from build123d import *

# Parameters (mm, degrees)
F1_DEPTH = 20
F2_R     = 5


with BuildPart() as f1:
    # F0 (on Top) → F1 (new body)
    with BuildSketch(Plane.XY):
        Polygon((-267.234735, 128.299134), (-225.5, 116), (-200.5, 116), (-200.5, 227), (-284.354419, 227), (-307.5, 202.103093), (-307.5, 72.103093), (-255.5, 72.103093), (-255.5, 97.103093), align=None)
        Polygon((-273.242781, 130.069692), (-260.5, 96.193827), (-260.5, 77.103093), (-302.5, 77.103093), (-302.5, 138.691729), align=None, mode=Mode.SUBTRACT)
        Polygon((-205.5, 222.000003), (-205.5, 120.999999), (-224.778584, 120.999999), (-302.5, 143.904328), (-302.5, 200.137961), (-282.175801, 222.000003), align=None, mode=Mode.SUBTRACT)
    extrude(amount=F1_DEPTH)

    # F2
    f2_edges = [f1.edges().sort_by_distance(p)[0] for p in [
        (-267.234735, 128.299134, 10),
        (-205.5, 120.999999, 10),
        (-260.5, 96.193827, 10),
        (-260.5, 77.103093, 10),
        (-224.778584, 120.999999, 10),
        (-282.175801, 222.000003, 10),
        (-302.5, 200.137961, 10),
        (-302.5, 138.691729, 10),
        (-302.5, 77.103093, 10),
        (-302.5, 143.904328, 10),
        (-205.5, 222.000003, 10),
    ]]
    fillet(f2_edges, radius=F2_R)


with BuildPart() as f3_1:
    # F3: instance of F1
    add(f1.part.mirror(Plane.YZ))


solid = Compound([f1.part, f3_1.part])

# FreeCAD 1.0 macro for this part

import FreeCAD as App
import Part
import Sketcher
from FreeCAD import Vector


def edges_at(feature, points):
    """Names of the edges that pass closest to the given points."""
    edges = feature.Shape.Edges
    near = lambda p: min(range(len(edges)), key=lambda i: edges[i].distToShape(Part.Vertex(*p))[0])
    return sorted({f"Edge{near(p) + 1}" for p in points})

doc = App.newDocument("Part")
params = doc.addObject("Spreadsheet::Sheet", "Params")
for row, (alias, value) in enumerate([
    ("sketch1_width", "25 mm"),
    ("sketch1_width2", "52 mm"),
    ("sketch1_width3", "42 mm"),
    ("sketch1_height", "111 mm"),
    ("sketch1_height2", "130 mm"),
    ("pad1_length", "20 mm"),
    ("fillet_radius", "5 mm"),
], start=1):
    params.set(f"A{row}", alias)
    params.set(f"B{row}", "=" + value)
    params.setAlias(f"B{row}", alias)

body = doc.addObject("PartDesign::Body", "Body")

sketch1 = doc.addObject("Sketcher::SketchObject", "Sketch")
body.addObject(sketch1)
sketch1.AttachmentSupport = (doc.XY_Plane, [""])
sketch1.MapMode = "FlatFace"
sketch1.addGeometry([
    Part.LineSegment(Vector(-267, 128, 0), Vector(-226, 116, 0)),
    Part.LineSegment(Vector(-226, 116, 0), Vector(-200, 116, 0)),
    Part.LineSegment(Vector(-200, 116, 0), Vector(-200, 227, 0)),
    Part.LineSegment(Vector(-200, 227, 0), Vector(-284, 227, 0)),
    Part.LineSegment(Vector(-284, 227, 0), Vector(-308, 202, 0)),
    Part.LineSegment(Vector(-308, 202, 0), Vector(-308, 72, 0)),
    Part.LineSegment(Vector(-308, 72, 0), Vector(-256, 72, 0)),
    Part.LineSegment(Vector(-256, 72, 0), Vector(-256, 97, 0)),
    Part.LineSegment(Vector(-256, 97, 0), Vector(-267, 128, 0)),
    Part.LineSegment(Vector(-302, 139, 0), Vector(-273, 130, 0)),
    Part.LineSegment(Vector(-273, 130, 0), Vector(-260, 96, 0)),
    Part.LineSegment(Vector(-260, 96, 0), Vector(-260, 77, 0)),
    Part.LineSegment(Vector(-260, 77, 0), Vector(-302, 77, 0)),
    Part.LineSegment(Vector(-302, 77, 0), Vector(-302, 139, 0)),
    Part.LineSegment(Vector(-282, 222, 0), Vector(-206, 222, 0)),
    Part.LineSegment(Vector(-206, 222, 0), Vector(-206, 121, 0)),
    Part.LineSegment(Vector(-206, 121, 0), Vector(-225, 121, 0)),
    Part.LineSegment(Vector(-225, 121, 0), Vector(-302, 144, 0)),
    Part.LineSegment(Vector(-302, 144, 0), Vector(-302, 200, 0)),
    Part.LineSegment(Vector(-302, 200, 0), Vector(-282, 222, 0)),
], False)
sketch1.addConstraint([
    Sketcher.Constraint("Coincident", 0, 2, 1, 1),
    Sketcher.Constraint("Coincident", 1, 2, 2, 1),
    Sketcher.Constraint("Coincident", 2, 2, 3, 1),
    Sketcher.Constraint("Coincident", 3, 2, 4, 1),
    Sketcher.Constraint("Coincident", 4, 2, 5, 1),
    Sketcher.Constraint("Coincident", 5, 2, 6, 1),
    Sketcher.Constraint("Coincident", 6, 2, 7, 1),
    Sketcher.Constraint("Coincident", 7, 2, 8, 1),
    Sketcher.Constraint("Coincident", 8, 2, 0, 1),
    Sketcher.Constraint("Coincident", 9, 2, 10, 1),
    Sketcher.Constraint("Coincident", 10, 2, 11, 1),
    Sketcher.Constraint("Coincident", 11, 2, 12, 1),
    Sketcher.Constraint("Coincident", 12, 2, 13, 1),
    Sketcher.Constraint("Coincident", 13, 2, 9, 1),
    Sketcher.Constraint("Coincident", 14, 2, 15, 1),
    Sketcher.Constraint("Coincident", 15, 2, 16, 1),
    Sketcher.Constraint("Coincident", 16, 2, 17, 1),
    Sketcher.Constraint("Coincident", 17, 2, 18, 1),
    Sketcher.Constraint("Coincident", 18, 2, 19, 1),
    Sketcher.Constraint("Coincident", 19, 2, 14, 1),
    Sketcher.Constraint("Horizontal", 1),
    Sketcher.Constraint("Vertical", 2),
    Sketcher.Constraint("Horizontal", 3),
    Sketcher.Constraint("Vertical", 5),
    Sketcher.Constraint("Horizontal", 6),
    Sketcher.Constraint("Vertical", 7),
    Sketcher.Constraint("Vertical", 11),
    Sketcher.Constraint("Horizontal", 12),
    Sketcher.Constraint("Vertical", 13),
    Sketcher.Constraint("Horizontal", 14),
    Sketcher.Constraint("Vertical", 15),
    Sketcher.Constraint("Horizontal", 16),
    Sketcher.Constraint("Vertical", 18),
    Sketcher.Constraint("Parallel", 0, 9),
    Sketcher.Constraint("Parallel", 8, 10),
    Sketcher.Constraint("Parallel", 9, 17),
    Sketcher.Constraint("Parallel", 4, 19),
    Sketcher.Constraint("Vertical", 13, 2, 17, 2),
    Sketcher.Constraint("Equal", 1, 7),
    Sketcher.Constraint("DistanceX", 1, 1, 1, 2, 25.0),
    Sketcher.Constraint("DistanceX", 6, 1, 6, 2, 52.0),
    Sketcher.Constraint("DistanceX", 12, 2, 12, 1, 42.0),
    Sketcher.Constraint("DistanceY", 2, 1, 2, 2, 111.0),
    Sketcher.Constraint("DistanceY", 5, 2, 5, 1, 130.0),
    Sketcher.Constraint("DistanceY", -1, 1, 0, 2, 116.0),
    Sketcher.Constraint("DistanceY", -1, 1, 15, 2, 120.999999),
    Sketcher.Constraint("DistanceX", 4, 2, 2, 2, 107.0),
    Sketcher.Constraint("DistanceX", 10, 2, 7, 2, 5.0),
    Sketcher.Constraint("DistanceY", 6, 2, 11, 2, 5.0),
    Sketcher.Constraint("DistanceX", 14, 2, 2, 2, 5.0),
    Sketcher.Constraint("DistanceX", 0, 2, -1, 1, 225.5),
    Sketcher.Constraint("DistanceX", 14, 1, 14, 2, 76.675801),
    Sketcher.Constraint("DistanceX", 3, 2, 3, 1, 83.854419),
    Sketcher.Constraint("DistanceY", 7, 2, 9, 2, 32.966599),
    Sketcher.Constraint("DistanceY", 13, 2, 17, 2, 5.212599),
    Sketcher.Constraint("DistanceY", 10, 2, 17, 2, 47.710501),
    Sketcher.Constraint("Distance", 8, 33.330121),
    Sketcher.Constraint("Distance", 9, 30.501219),
    Sketcher.Constraint("Distance", 10, 36.193269),
    Sketcher.Constraint("DistanceY", 15, 2, 15, 1, 101.000004),
])
sketch1.setExpression("Constraints[39]", "Params.sketch1_width")
sketch1.setExpression("Constraints[40]", "Params.sketch1_width2")
sketch1.setExpression("Constraints[41]", "Params.sketch1_width3")
sketch1.setExpression("Constraints[42]", "Params.sketch1_height")
sketch1.setExpression("Constraints[43]", "Params.sketch1_height2")
pad1 = doc.addObject("PartDesign::Pad", "Pad")
body.addObject(pad1)
pad1.Profile = sketch1
pad1.setExpression("Length", "Params.pad1_length")
doc.recompute()

fillet = doc.addObject("PartDesign::Fillet", "Fillet")
body.addObject(fillet)
fillet.Base = (pad1, edges_at(pad1, [
    (-267.235, 128.299, 10),
    (-205.5, 121, 10),
    (-260.5, 96.194, 10),
    (-260.5, 77.103, 10),
    (-224.779, 121, 10),
    (-282.176, 222, 10),
    (-302.5, 200.138, 10),
    (-302.5, 138.692, 10),
    (-302.5, 77.103, 10),
    (-302.5, 143.904, 10),
    (-205.5, 222, 10),
]))
fillet.setExpression("Radius", "Params.fillet_radius")
body2 = doc.addObject("PartDesign::Body", "Body001")
doc.recompute()

mirroring = doc.addObject("Part::Mirroring", "Mirroring")
mirroring.Source = body
mirroring.Base = Vector(0, 0, 0)
mirroring.Normal = Vector(1, 0, 0)
body2.BaseFeature = mirroring
doc.recompute()
mirroring.Visibility = False

doc.recompute()
